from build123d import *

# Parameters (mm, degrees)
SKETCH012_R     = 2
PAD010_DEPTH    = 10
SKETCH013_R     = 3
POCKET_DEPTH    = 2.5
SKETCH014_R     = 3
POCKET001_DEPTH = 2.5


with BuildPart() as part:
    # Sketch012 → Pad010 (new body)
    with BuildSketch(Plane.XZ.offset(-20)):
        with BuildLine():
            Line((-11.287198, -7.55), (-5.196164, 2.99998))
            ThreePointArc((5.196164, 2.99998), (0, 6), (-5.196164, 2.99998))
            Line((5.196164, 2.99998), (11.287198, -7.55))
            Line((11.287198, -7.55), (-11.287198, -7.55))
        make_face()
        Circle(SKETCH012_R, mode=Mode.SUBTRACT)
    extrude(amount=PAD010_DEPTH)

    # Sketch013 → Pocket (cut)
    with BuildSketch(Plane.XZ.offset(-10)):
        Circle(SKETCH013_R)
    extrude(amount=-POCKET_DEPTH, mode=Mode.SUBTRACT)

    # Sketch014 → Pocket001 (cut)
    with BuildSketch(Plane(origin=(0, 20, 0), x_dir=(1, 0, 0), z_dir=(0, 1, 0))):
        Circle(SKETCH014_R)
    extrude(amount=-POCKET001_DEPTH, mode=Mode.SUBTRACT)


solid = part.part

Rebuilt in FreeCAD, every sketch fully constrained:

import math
import FreeCAD as App
import Part
import Sketcher

V = App.Vector
Q = App.Units.Quantity

doc = App.newDocument("Part")
body = doc.addObject("PartDesign::Body", "Body")

# Sketch on XZ plane
sketch1 = body.newObject("Sketcher::SketchObject", "Sketch")
sketch1.AttachmentSupport = (doc.getObject("XZ_Plane"), [""])
sketch1.MapMode = "FlatFace"
sketch1.AttachmentOffset = App.Placement(V(0, 0, -20), App.Rotation())
sketch1.addGeometry([
    Part.LineSegment(V(-5.196164, 2.99998, 0), V(-11.287198, -7.55, 0)),  # 0
    Part.LineSegment(V(-11.287198, -7.55, 0), V(11.287198, -7.55, 0)),  # 1
    Part.LineSegment(V(11.287198, -7.55, 0), V(5.196164, 2.99998, 0)),  # 2
    Part.ArcOfCircle(Part.Circle(V(0, 0, 0), V(0, 0, 1), 6), math.radians(29.99978), math.radians(150.00022)),  # 3
    Part.Circle(V(0, 0, 0), V(0, 0, 1), 2),  # 4
], False)
sketch1.addConstraint([
    Sketcher.Constraint("Coincident", 0, 2, 1, 1),
    Sketcher.Constraint("Coincident", 1, 2, 2, 1),
    Sketcher.Constraint("Coincident", 2, 2, 3, 1),
    Sketcher.Constraint("Coincident", 3, 2, 0, 1),
    Sketcher.Constraint("Horizontal", 1),
    Sketcher.Constraint("Coincident", 3, 3, -1, 1),
    Sketcher.Constraint("Coincident", 4, 3, -1, 1),
    Sketcher.Constraint("Horizontal", 2, 2, 3, 2),
    Sketcher.Constraint("Equal", 0, 2),
    Sketcher.Constraint("Diameter", 4, 4.0),
    Sketcher.Constraint("Radius", 3, 6.0),
    Sketcher.Constraint("Angle", 0, Q("-120.000001 deg")),
    Sketcher.Constraint("DistanceY", 0, 2, -1, 1, 7.55),
    Sketcher.Constraint("DistanceY", -1, 1, 2, 2, 2.99998),
])
pad1 = body.newObject("PartDesign::Pad", "Pad")
pad1.Profile = sketch1
pad1.Length = 10

# Sketch on XZ plane
sketch2 = body.newObject("Sketcher::SketchObject", "Sketch001")
sketch2.AttachmentSupport = (doc.getObject("XZ_Plane"), [""])
sketch2.MapMode = "FlatFace"
sketch2.AttachmentOffset = App.Placement(V(0, 0, -10), App.Rotation())
sketch2.addGeometry(Part.Circle(V(0, 0, 0), V(0, 0, 1), 3), False)
sketch2.addConstraint([
    Sketcher.Constraint("Coincident", 0, 3, -1, 1),
    Sketcher.Constraint("Diameter", 0, 6.0),
])
pocket1 = body.newObject("PartDesign::Pocket", "Pocket")
pocket1.Profile = sketch2
pocket1.Length = 2.5

# Sketch on XZ plane
sketch3 = body.newObject("Sketcher::SketchObject", "Sketch002")
sketch3.AttachmentSupport = (doc.getObject("XZ_Plane"), [""])
sketch3.MapMode = "FlatFace"
sketch3.AttachmentOffset = App.Placement(V(0, 0, -20), App.Rotation())
sketch3.addGeometry(Part.Circle(V(0, 0, 0), V(0, 0, 1), 3), False)
sketch3.addConstraint([
    Sketcher.Constraint("Coincident", 0, 3, -1, 1),
    Sketcher.Constraint("Diameter", 0, 6.0),
])
pocket2 = body.newObject("PartDesign::Pocket", "Pocket001")
pocket2.Profile = sketch3
pocket2.Length = 2.5
pocket2.Reversed = True

doc.recompute()
